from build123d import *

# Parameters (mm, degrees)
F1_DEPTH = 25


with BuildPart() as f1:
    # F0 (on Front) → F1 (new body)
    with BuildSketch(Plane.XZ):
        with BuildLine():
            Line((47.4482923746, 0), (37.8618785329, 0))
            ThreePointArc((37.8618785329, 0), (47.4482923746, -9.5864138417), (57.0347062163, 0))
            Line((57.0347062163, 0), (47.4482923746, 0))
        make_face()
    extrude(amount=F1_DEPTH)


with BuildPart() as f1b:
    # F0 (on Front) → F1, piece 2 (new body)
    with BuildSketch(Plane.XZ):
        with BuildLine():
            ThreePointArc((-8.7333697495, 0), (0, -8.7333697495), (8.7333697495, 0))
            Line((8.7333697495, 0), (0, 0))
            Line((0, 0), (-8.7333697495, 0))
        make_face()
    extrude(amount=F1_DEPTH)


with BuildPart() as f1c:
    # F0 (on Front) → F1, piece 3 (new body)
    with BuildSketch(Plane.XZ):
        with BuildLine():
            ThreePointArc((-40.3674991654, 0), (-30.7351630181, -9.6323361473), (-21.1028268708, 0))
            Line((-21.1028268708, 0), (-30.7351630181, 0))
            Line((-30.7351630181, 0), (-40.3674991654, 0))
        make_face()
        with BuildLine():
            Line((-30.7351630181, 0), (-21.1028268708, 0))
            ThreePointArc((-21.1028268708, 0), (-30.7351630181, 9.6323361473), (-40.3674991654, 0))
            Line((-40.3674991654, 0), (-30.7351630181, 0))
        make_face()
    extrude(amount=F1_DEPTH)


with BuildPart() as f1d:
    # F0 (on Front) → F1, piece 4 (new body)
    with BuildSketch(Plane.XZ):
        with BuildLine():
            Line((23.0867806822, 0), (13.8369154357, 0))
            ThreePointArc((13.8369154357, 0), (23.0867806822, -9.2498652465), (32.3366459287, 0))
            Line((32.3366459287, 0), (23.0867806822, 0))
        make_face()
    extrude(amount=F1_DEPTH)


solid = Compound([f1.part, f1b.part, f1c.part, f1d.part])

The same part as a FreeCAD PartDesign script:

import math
import FreeCAD as App
import Part
import Sketcher
from FreeCAD import Vector
Q = App.Units.Quantity

doc = App.newDocument("Part")
body = doc.addObject("PartDesign::Body", "Body")

sketch1 = body.newObject("Sketcher::SketchObject", "Sketch")
sketch1.AttachmentSupport = (doc.getObject("XZ_Plane"), [""])
sketch1.MapMode = "FlatFace"
sketch1.addGeometry([
    Part.ArcOfCircle(Part.Circle(Vector(47.448292, 0, 0), Vector(0, 0, 1), 9.586414), math.radians(180), math.radians(360)),
    Part.LineSegment(Vector(57.034706, 0, 0), Vector(37.861879, 0, 0)),
], False)
sketch1.addConstraint([
    Sketcher.Constraint("Coincident", 0, 1, 1, 2),
    Sketcher.Constraint("Coincident", 1, 1, 0, 2),
    Sketcher.Constraint("Horizontal", 1),
    Sketcher.Constraint("PointOnObject", 0, 3, -1),
    Sketcher.Constraint("PointOnObject", 0, 1, -1),
    Sketcher.Constraint("Radius", 0, Q("9.586414 mm")),
    Sketcher.Constraint("DistanceX", -1, 1, 0, 1, Q("37.861879 mm")),
])
pad1 = body.newObject("PartDesign::Pad", "Pad")
pad1.Profile = sketch1
pad1.Length = 25
body2 = doc.addObject("PartDesign::Body", "Body001")

sketch2 = body2.newObject("Sketcher::SketchObject", "Sketch001")
sketch2.AttachmentSupport = (doc.getObject("XZ_Plane001"), [""])
sketch2.MapMode = "FlatFace"
sketch2.addGeometry([
    Part.ArcOfCircle(Part.Circle(Vector(0, 0, 0), Vector(0, 0, 1), 8.73337), math.radians(180), math.radians(360)),
    Part.LineSegment(Vector(8.73337, 0, 0), Vector(-8.73337, 0, 0)),
], False)
sketch2.addConstraint([
    Sketcher.Constraint("Coincident", 0, 1, 1, 2),
    Sketcher.Constraint("Coincident", 1, 1, 0, 2),
    Sketcher.Constraint("Horizontal", 1),
    Sketcher.Constraint("Coincident", 0, 3, -1, 1),
    Sketcher.Constraint("PointOnObject", 0, 1, -1),
    Sketcher.Constraint("Radius", 0, Q("8.73337 mm")),
])
pad2 = body2.newObject("PartDesign::Pad", "Pad001")
pad2.Profile = sketch2
pad2.Length = 25
body3 = doc.addObject("PartDesign::Body", "Body002")

sketch3 = body3.newObject("Sketcher::SketchObject", "Sketch002")
sketch3.AttachmentSupport = (doc.getObject("XZ_Plane002"), [""])
sketch3.MapMode = "FlatFace"
sketch3.addGeometry(Part.Circle(Vector(-30.735163, 0, 0), Vector(0, 0, 1), 9.632336), False)
sketch3.addConstraint([
    Sketcher.Constraint("PointOnObject", 0, 3, -1),
    Sketcher.Constraint("Diameter", 0, Q("19.264672 mm")),
    Sketcher.Constraint("DistanceX", 0, 3, -1, 1, Q("30.735163 mm")),
])
pad3 = body3.newObject("PartDesign::Pad", "Pad002")
pad3.Profile = sketch3
pad3.Length = 25
body4 = doc.addObject("PartDesign::Body", "Body003")

sketch4 = body4.newObject("Sketcher::SketchObject", "Sketch003")
sketch4.AttachmentSupport = (doc.getObject("XZ_Plane003"), [""])
sketch4.MapMode = "FlatFace"
sketch4.addGeometry([
    Part.ArcOfCircle(Part.Circle(Vector(23.086781, 0, 0), Vector(0, 0, 1), 9.249865), math.radians(180), math.radians(360)),
    Part.LineSegment(Vector(32.336646, 0, 0), Vector(13.836915, 0, 0)),
], False)
sketch4.addConstraint([
    Sketcher.Constraint("Coincident", 0, 1, 1, 2),
    Sketcher.Constraint("Coincident", 1, 1, 0, 2),
    Sketcher.Constraint("Horizontal", 1),
    Sketcher.Constraint("PointOnObject", 0, 3, -1),
    Sketcher.Constraint("PointOnObject", 0, 1, -1),
    Sketcher.Constraint("Radius", 0, Q("9.249865 mm")),
    Sketcher.Constraint("DistanceX", -1, 1, 0, 3, Q("23.086781 mm")),
])
pad4 = body4.newObject("PartDesign::Pad", "Pad003")
pad4.Profile = sketch4
pad4.Length = 25

doc.recompute()
